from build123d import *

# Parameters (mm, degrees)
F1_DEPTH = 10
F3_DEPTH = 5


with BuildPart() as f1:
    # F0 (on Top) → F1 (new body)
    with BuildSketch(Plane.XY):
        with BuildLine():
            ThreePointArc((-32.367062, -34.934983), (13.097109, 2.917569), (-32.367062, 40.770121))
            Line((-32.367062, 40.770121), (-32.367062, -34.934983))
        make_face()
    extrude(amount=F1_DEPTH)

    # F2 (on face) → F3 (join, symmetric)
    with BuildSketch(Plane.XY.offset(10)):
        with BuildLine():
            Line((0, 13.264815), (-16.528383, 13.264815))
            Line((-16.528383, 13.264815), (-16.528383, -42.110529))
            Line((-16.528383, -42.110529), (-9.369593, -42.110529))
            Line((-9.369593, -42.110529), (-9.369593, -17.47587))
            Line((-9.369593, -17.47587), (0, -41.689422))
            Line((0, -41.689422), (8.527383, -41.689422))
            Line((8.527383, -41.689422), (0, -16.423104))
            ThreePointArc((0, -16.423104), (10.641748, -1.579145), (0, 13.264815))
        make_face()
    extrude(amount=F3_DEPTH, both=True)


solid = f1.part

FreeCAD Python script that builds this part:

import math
import FreeCAD as App
import Part
import Sketcher
from FreeCAD import Vector
Q = App.Units.Quantity

doc = App.newDocument("Part")
body = doc.addObject("PartDesign::Body", "Body")

sketch1 = body.newObject("Sketcher::SketchObject", "Sketch")
sketch1.AttachmentSupport = (doc.getObject("XY_Plane"), [""])
sketch1.MapMode = "FlatFace"
sketch1.addGeometry(Part.ArcOfCircle(Part.Circle(Vector(-25.392612, 2.917569, 0), Vector(0, 0, 1), 38.489721), math.radians(-100.439834), math.radians(100.439834)), False)
sketch1.addGeometry(Part.LineSegment(Vector(-32.367062, 40.770121, 0), Vector(-32.367062, -34.934983, 0)), False)
sketch1.addConstraint(Sketcher.Constraint("Coincident", 0, 1, 1, 2))
sketch1.addConstraint(Sketcher.Constraint("Coincident", 1, 1, 0, 2))
sketch1.addConstraint(Sketcher.Constraint("Vertical", 1))
sketch1.addConstraint(Sketcher.Constraint("Radius", 0, Q("38.489721 mm")))
sketch1.addConstraint(Sketcher.Constraint("DistanceY", 1, 2, 1, 1, Q("75.705104 mm")))
sketch1.addConstraint(Sketcher.Constraint("DistanceY", -1, 1, 0, 3, Q("2.917569 mm")))
sketch1.addConstraint(Sketcher.Constraint("DistanceX", 1, 1, -1, 1, Q("32.367062 mm")))
pad1 = body.newObject("PartDesign::Pad", "Pad")
pad1.Profile = sketch1
pad1.Length = 10

sketch2 = body.newObject("Sketcher::SketchObject", "Sketch001")
sketch2.AttachmentSupport = (doc.getObject("XY_Plane"), [""])
sketch2.MapMode = "FlatFace"
sketch2.AttachmentOffset = App.Placement(Vector(0, 0, 10), App.Rotation())
sketch2.addGeometry(Part.LineSegment(Vector(0, 13.264815, 0), Vector(-16.528383, 13.264815, 0)), False)
sketch2.addGeometry(Part.LineSegment(Vector(-16.528383, 13.264815, 0), Vector(-16.528383, -42.110529, 0)), False)
sketch2.addGeometry(Part.LineSegment(Vector(-16.528383, -42.110529, 0), Vector(-9.369593, -42.110529, 0)), False)
sketch2.addGeometry(Part.LineSegment(Vector(-9.369593, -42.110529, 0), Vector(-9.369593, -17.47587, 0)), False)
sketch2.addGeometry(Part.LineSegment(Vector(-9.369593, -17.47587, 0), Vector(0, -41.689422, 0)), False)
sketch2.addGeometry(Part.LineSegment(Vector(0, -41.689422, 0), Vector(8.527383, -41.689422, 0)), False)
sketch2.addGeometry(Part.LineSegment(Vector(8.527383, -41.689422, 0), Vector(0, -16.423104, 0)), False)
sketch2.addGeometry(Part.ArcOfCircle(Part.Circle(Vector(-5.031896, -1.579144, 0), Vector(0, 0, 1), 15.673644), math.radians(-71.274056), math.radians(71.274056)), False)
sketch2.addConstraint(Sketcher.Constraint("Coincident", 0, 2, 1, 1))
sketch2.addConstraint(Sketcher.Constraint("Coincident", 1, 2, 2, 1))
sketch2.addConstraint(Sketcher.Constraint("Coincident", 2, 2, 3, 1))
sketch2.addConstraint(Sketcher.Constraint("Coincident", 3, 2, 4, 1))
sketch2.addConstraint(Sketcher.Constraint("Coincident", 4, 2, 5, 1))
sketch2.addConstraint(Sketcher.Constraint("Coincident", 5, 2, 6, 1))
sketch2.addConstraint(Sketcher.Constraint("Coincident", 6, 2, 7, 1))
sketch2.addConstraint(Sketcher.Constraint("Coincident", 7, 2, 0, 1))
sketch2.addConstraint(Sketcher.Constraint("Horizontal", 0))
sketch2.addConstraint(Sketcher.Constraint("Vertical", 1))
sketch2.addConstraint(Sketcher.Constraint("Horizontal", 2))
sketch2.addConstraint(Sketcher.Constraint("Vertical", 3))
sketch2.addConstraint(Sketcher.Constraint("Horizontal", 5))
sketch2.addConstraint(Sketcher.Constraint("PointOnObject", 4, 2, -2))
sketch2.addConstraint(Sketcher.Constraint("PointOnObject", 6, 2, -2))
sketch2.addConstraint(Sketcher.Constraint("PointOnObject", 7, 2, -2))
sketch2.addConstraint(Sketcher.Constraint("Radius", 7, Q("15.673644 mm")))
sketch2.addConstraint(Sketcher.Constraint("DistanceX", 2, 1, 2, 2, Q("7.15879 mm")))
sketch2.addConstraint(Sketcher.Constraint("DistanceY", 3, 1, 3, 2, Q("24.634659 mm")))
sketch2.addConstraint(Sketcher.Constraint("DistanceX", 0, 2, 0, 1, Q("16.528383 mm")))
sketch2.addConstraint(Sketcher.Constraint("DistanceX", 5, 1, 5, 2, Q("8.527383 mm")))
sketch2.addConstraint(Sketcher.Constraint("DistanceY", 1, 2, 1, 1, Q("55.375344 mm")))
sketch2.addConstraint(Sketcher.Constraint("DistanceY", 1, 2, -1, 1, Q("42.110529 mm")))
sketch2.addConstraint(Sketcher.Constraint("DistanceY", 7, 3, 0, 2, Q("14.84396 mm")))
sketch2.addConstraint(Sketcher.Constraint("DistanceY", 4, 2, 3, 2, Q("24.213552 mm")))
pad2 = body.newObject("PartDesign::Pad", "Pad001")
pad2.Profile = sketch2
pad2.Length = 10
pad2.Midplane = True

doc.recompute()
